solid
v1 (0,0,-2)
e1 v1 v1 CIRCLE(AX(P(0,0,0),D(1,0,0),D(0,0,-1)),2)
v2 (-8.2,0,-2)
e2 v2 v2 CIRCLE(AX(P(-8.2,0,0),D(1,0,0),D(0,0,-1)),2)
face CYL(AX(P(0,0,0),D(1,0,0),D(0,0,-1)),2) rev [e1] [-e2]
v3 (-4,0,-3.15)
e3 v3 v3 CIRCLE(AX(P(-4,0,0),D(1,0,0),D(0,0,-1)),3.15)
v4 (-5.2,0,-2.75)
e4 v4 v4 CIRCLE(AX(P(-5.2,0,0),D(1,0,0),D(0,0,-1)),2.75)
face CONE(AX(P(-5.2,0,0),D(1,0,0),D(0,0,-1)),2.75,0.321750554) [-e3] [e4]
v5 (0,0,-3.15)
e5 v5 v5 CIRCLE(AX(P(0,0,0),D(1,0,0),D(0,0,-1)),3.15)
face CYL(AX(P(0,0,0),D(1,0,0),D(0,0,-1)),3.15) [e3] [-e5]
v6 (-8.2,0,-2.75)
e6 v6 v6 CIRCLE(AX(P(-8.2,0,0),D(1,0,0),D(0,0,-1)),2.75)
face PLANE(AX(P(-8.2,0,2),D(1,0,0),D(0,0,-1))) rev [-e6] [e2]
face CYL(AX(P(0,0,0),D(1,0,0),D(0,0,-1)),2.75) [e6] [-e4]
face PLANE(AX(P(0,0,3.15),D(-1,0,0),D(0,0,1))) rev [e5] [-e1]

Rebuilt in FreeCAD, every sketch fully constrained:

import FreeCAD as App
import Part
import Sketcher

V = App.Vector

doc = App.newDocument("Part")
params = doc.addObject("Spreadsheet::Sheet", "Params")
for row, (alias, value) in enumerate([
    ("sketch1_width", "3 mm"),
    ("sketch1_width2", "4 mm"),
    ("sketch1_width3", "8.2 mm"),
    ("sketch1_height", "1.15 mm"),
    ("sketch1_height2", "0.75 mm"),
    ("revolution_angle", "360 deg"),
], start=1):
    params.set(f"A{row}", alias)
    params.set(f"B{row}", "=" + value)
    params.setAlias(f"B{row}", alias)

body = doc.addObject("PartDesign::Body", "Body")

sketch1 = doc.addObject("Sketcher::SketchObject", "Sketch")
body.addObject(sketch1)
sketch1.AttachmentSupport = (doc.XZ_Plane, [""])
sketch1.MapMode = "FlatFace"
sketch1.addGeometry([
    Part.LineSegment(V(0, 3.1, 0), V(0, 2, 0)),
    Part.LineSegment(V(0, 2, 0), V(-8.2, 2, 0)),
    Part.LineSegment(V(-8.2, 2, 0), V(-8.2, 2.8, 0)),
    Part.LineSegment(V(-8.2, 2.8, 0), V(-5.2, 2.8, 0)),
    Part.LineSegment(V(-5.2, 2.8, 0), V(-4, 3.1, 0)),
    Part.LineSegment(V(-4, 3.1, 0), V(0, 3.1, 0)),
], False)
sketch1.addConstraint([
    Sketcher.Constraint("Coincident", 0, 2, 1, 1),
    Sketcher.Constraint("Coincident", 1, 2, 2, 1),
    Sketcher.Constraint("Coincident", 2, 2, 3, 1),
    Sketcher.Constraint("Coincident", 3, 2, 4, 1),
    Sketcher.Constraint("Coincident", 4, 2, 5, 1),
    Sketcher.Constraint("Coincident", 5, 2, 0, 1),
    Sketcher.Constraint("Vertical", 0),
    Sketcher.Constraint("Horizontal", 1),
    Sketcher.Constraint("Vertical", 2),
    Sketcher.Constraint("Horizontal", 3),
    Sketcher.Constraint("Horizontal", 5),
    Sketcher.Constraint("PointOnObject", 0, 2, -2),
    Sketcher.Constraint("DistanceX", 3, 1, 3, 2, 3.0),
    Sketcher.Constraint("DistanceX", 5, 1, 5, 2, 4.0),
    Sketcher.Constraint("DistanceX", 1, 2, 1, 1, 8.2),
    Sketcher.Constraint("DistanceY", -1, 1, 0, 2, 2.0),
    Sketcher.Constraint("DistanceY", 0, 2, 0, 1, 1.15),
    Sketcher.Constraint("DistanceY", 2, 1, 2, 2, 0.75),
])
sketch1.setExpression("Constraints[12]", "Params.sketch1_width")
sketch1.setExpression("Constraints[13]", "Params.sketch1_width2")
sketch1.setExpression("Constraints[14]", "Params.sketch1_width3")
sketch1.setExpression("Constraints[16]", "Params.sketch1_height")
sketch1.setExpression("Constraints[17]", "Params.sketch1_height2")
revolution = doc.addObject("PartDesign::Revolution", "Revolution")
body.addObject(revolution)
revolution.Profile = sketch1
revolution.ReferenceAxis = (sketch1, ["H_Axis"])
revolution.setExpression("Angle", "Params.revolution_angle")

doc.recompute()
